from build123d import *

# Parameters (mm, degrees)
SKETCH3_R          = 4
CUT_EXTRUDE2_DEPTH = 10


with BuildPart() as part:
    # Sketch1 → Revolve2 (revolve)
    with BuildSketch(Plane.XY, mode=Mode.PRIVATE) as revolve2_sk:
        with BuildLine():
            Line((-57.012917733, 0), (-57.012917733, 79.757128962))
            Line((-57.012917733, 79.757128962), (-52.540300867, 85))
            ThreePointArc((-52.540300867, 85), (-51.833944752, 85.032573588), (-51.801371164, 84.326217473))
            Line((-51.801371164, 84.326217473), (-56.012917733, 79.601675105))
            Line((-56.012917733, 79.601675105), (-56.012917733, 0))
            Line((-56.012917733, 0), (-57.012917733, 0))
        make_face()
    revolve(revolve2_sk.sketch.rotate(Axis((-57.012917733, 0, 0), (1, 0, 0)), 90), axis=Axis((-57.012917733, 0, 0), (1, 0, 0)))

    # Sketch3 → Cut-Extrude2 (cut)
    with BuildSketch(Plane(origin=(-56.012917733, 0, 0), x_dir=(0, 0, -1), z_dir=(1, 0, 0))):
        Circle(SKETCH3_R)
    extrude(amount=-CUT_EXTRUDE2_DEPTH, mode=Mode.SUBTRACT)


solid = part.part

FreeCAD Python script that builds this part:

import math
import FreeCAD as App
import Part
import Sketcher

V = App.Vector

doc = App.newDocument("Part")
body = doc.addObject("PartDesign::Body", "Body")

sketch1 = body.newObject("Sketcher::SketchObject", "Sketch")
sketch1.AttachmentSupport = (doc.getObject("XY_Plane"), [""])
sketch1.MapMode = "FlatFace"
sketch1.addGeometry(Part.LineSegment(V(-57, 79.8, 0), V(-57, 0, 0)), False)
sketch1.addGeometry(Part.LineSegment(V(-57, 0, 0), V(-56, 0, 0)), False)
sketch1.addGeometry(Part.LineSegment(V(-56, 0, 0), V(-56, 79.6, 0)), False)
sketch1.addGeometry(Part.LineSegment(V(-56, 79.6, 0), V(-51.8, 84.3, 0)), False)
sketch1.addGeometry(Part.ArcOfCircle(Part.Circle(V(-52.2, 84.7, 0), V(0, 0, 1), 0.5), math.radians(-42), math.radians(138)), False)
sketch1.addGeometry(Part.LineSegment(V(-52.5, 85, 0), V(-57, 79.8, 0)), False)
sketch1.addConstraint(Sketcher.Constraint("Coincident", 0, 2, 1, 1))
sketch1.addConstraint(Sketcher.Constraint("Coincident", 1, 2, 2, 1))
sketch1.addConstraint(Sketcher.Constraint("Coincident", 2, 2, 3, 1))
sketch1.addConstraint(Sketcher.Constraint("Coincident", 3, 2, 4, 1))
sketch1.addConstraint(Sketcher.Constraint("Coincident", 4, 2, 5, 1))
sketch1.addConstraint(Sketcher.Constraint("Coincident", 5, 2, 0, 1))
sketch1.addConstraint(Sketcher.Constraint("Vertical", 0))
sketch1.addConstraint(Sketcher.Constraint("Horizontal", 1))
sketch1.addConstraint(Sketcher.Constraint("Vertical", 2))
sketch1.addConstraint(Sketcher.Constraint("PointOnObject", 0, 2, -1))
sketch1.addConstraint(Sketcher.Constraint("Radius", 4, 0.5))
sketch1.addConstraint(Sketcher.Constraint("DistanceX", 1, 1, 1, 2, 1.0))
sketch1.addConstraint(Sketcher.Constraint("DistanceY", -1, 1, 4, 2, 85.0))
sketch1.addConstraint(Sketcher.Constraint("DistanceY", 0, 2, 0, 1, 79.757129))
sketch1.addConstraint(Sketcher.Constraint("DistanceX", 4, 2, -1, 1, 52.540301))
sketch1.addConstraint(Sketcher.Constraint("DistanceY", 2, 1, 2, 2, 79.601675))
sketch1.addConstraint(Sketcher.Constraint("DistanceY", -1, 1, 4, 3, 84.663109))
sketch1.addConstraint(Sketcher.Constraint("DistanceX", 3, 2, -1, 1, 51.801371))
sketch1.addConstraint(Sketcher.Constraint("DistanceX", 0, 2, 4, 3, 4.842082))
revolution = body.newObject("PartDesign::Revolution", "Revolution")
revolution.Profile = sketch1
revolution.ReferenceAxis = (sketch1, ["H_Axis"])
revolution.Angle = 360

sketch2 = body.newObject("Sketcher::SketchObject", "Sketch001")
sketch2.AttachmentSupport = (doc.getObject("YZ_Plane"), [""])
sketch2.MapMode = "FlatFace"
sketch2.AttachmentOffset = App.Placement(V(0, 0, -56.012918), App.Rotation())
sketch2.addGeometry(Part.Circle(V(0, 0, 0), V(0, 0, 1), 4), False)
sketch2.addConstraint(Sketcher.Constraint("Coincident", 0, 3, -1, 1))
sketch2.addConstraint(Sketcher.Constraint("Diameter", 0, 8.0))
pocket1 = body.newObject("PartDesign::Pocket", "Pocket")
pocket1.Profile = sketch2
pocket1.Length = 10

doc.recompute()
